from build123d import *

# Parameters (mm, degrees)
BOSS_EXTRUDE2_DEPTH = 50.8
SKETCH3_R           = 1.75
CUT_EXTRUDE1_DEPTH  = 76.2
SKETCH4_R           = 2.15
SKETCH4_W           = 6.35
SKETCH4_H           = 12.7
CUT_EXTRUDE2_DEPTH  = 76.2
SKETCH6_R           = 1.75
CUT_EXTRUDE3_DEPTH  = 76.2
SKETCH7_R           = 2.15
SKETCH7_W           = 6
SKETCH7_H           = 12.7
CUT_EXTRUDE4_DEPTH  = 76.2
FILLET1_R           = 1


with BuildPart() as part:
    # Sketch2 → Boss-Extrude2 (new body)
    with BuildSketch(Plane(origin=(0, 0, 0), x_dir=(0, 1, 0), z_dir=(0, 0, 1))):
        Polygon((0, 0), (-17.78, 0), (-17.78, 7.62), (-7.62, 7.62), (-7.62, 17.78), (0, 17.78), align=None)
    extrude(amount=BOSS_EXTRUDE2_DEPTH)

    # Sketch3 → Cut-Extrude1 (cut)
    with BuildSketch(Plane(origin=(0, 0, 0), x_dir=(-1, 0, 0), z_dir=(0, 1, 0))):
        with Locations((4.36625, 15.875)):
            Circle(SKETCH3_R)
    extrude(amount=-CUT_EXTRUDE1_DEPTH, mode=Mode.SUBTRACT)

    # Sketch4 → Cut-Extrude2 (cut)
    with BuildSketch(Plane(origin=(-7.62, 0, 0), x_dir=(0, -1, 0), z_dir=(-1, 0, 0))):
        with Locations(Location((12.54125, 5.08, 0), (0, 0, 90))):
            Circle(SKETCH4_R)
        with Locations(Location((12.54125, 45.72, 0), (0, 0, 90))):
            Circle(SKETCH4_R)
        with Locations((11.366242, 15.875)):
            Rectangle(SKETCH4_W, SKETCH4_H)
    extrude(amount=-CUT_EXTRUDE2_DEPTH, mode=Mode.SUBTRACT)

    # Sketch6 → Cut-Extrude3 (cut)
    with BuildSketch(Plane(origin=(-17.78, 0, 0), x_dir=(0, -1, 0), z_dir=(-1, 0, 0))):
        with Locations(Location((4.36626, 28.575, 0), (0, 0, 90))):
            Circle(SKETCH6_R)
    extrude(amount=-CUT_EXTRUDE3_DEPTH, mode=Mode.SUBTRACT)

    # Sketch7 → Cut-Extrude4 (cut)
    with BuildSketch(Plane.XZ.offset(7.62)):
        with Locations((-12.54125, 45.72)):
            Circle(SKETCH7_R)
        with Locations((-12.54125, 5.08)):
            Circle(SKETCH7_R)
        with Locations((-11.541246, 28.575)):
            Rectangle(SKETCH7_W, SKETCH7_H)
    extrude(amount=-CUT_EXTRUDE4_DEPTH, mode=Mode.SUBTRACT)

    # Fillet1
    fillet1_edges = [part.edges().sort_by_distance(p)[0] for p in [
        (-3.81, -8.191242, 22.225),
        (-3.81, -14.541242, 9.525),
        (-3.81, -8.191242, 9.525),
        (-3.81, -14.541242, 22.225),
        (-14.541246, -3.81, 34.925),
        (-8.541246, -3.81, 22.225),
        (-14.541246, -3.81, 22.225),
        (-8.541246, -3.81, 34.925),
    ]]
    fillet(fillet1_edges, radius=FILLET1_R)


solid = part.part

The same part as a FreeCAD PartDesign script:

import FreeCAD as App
import Part
import Sketcher

V = App.Vector
Q = App.Units.Quantity


def edges_at(feature, points):
    """Names of the edges that pass closest to the given points."""
    edges = feature.Shape.Edges
    near = lambda p: min(range(len(edges)), key=lambda i: edges[i].distToShape(Part.Vertex(*p))[0])
    return sorted({f"Edge{near(p) + 1}" for p in points})

doc = App.newDocument("Part")
body = doc.addObject("PartDesign::Body", "Body")

# Sketch on XY plane
sketch1 = body.newObject("Sketcher::SketchObject", "Sketch")
sketch1.AttachmentSupport = (doc.getObject("XY_Plane"), [""])
sketch1.MapMode = "FlatFace"
sketch1.addGeometry([
    Part.LineSegment(V(0, -18, 0), V(0, 0, 0)),  # 0
    Part.LineSegment(V(0, 0, 0), V(-18, 0, 0)),  # 1
    Part.LineSegment(V(-18, 0, 0), V(-18, -8, 0)),  # 2
    Part.LineSegment(V(-18, -8, 0), V(-8, -8, 0)),  # 3
    Part.LineSegment(V(-8, -8, 0), V(-8, -18, 0)),  # 4
    Part.LineSegment(V(-8, -18, 0), V(0, -18, 0)),  # 5
], False)
sketch1.addConstraint([
    Sketcher.Constraint("Coincident", 0, 2, 1, 1),
    Sketcher.Constraint("Coincident", 1, 2, 2, 1),
    Sketcher.Constraint("Coincident", 2, 2, 3, 1),
    Sketcher.Constraint("Coincident", 3, 2, 4, 1),
    Sketcher.Constraint("Coincident", 4, 2, 5, 1),
    Sketcher.Constraint("Coincident", 5, 2, 0, 1),
    Sketcher.Constraint("Vertical", 0),
    Sketcher.Constraint("Horizontal", 1),
    Sketcher.Constraint("Vertical", 2),
    Sketcher.Constraint("Horizontal", 3),
    Sketcher.Constraint("Vertical", 4),
    Sketcher.Constraint("Horizontal", 5),
    Sketcher.Constraint("Coincident", 0, 2, -1, 1),
    Sketcher.Constraint("Equal", 1, 0),
    Sketcher.Constraint("Equal", 5, 2),
    Sketcher.Constraint("DistanceX", 1, 2, 1, 1, Q("0.7 in")),
    Sketcher.Constraint("DistanceX", 3, 1, 3, 2, Q("0.4 in")),
])
pad1 = body.newObject("PartDesign::Pad", "Pad")
pad1.Profile = sketch1
pad1.Length = Q("2 in")

# Sketch on XZ plane
sketch2 = body.newObject("Sketcher::SketchObject", "Sketch001")
sketch2.AttachmentSupport = (doc.getObject("XZ_Plane"), [""])
sketch2.MapMode = "FlatFace"
sketch2.addGeometry(Part.Circle(V(-4.4, 15.9, 0), V(0, 0, 1), 1.8), False)
sketch2.addConstraint([
    Sketcher.Constraint("Diameter", 0, 3.5),
    Sketcher.Constraint("DistanceY", -1, 1, 0, 3, Q("0.625 in")),
    Sketcher.Constraint("DistanceX", 0, 3, -1, 1, 4.36625),
])
pocket1 = body.newObject("PartDesign::Pocket", "Pocket")
pocket1.Profile = sketch2
pocket1.Length = Q("3 in")
pocket1.Reversed = True

# Sketch on YZ plane
sketch3 = body.newObject("Sketcher::SketchObject", "Sketch002")
sketch3.AttachmentSupport = (doc.getObject("YZ_Plane"), [""])
sketch3.MapMode = "FlatFace"
sketch3.AttachmentOffset = App.Placement(V(0, 0, -0.3 * 25.4), App.Rotation())
sketch3.addGeometry([
    Part.Circle(V(-12.5, 5.1, 0), V(0, 0, 1), 2.1),  # 0
    Part.Circle(V(-12.5, 45.7, 0), V(0, 0, 1), 2.1),  # 1
    Part.LineSegment(V(-8.2, 22.2, 0), V(-8.2, 9.5, 0)),  # 2
    Part.LineSegment(V(-8.2, 9.5, 0), V(-14.5, 9.5, 0)),  # 3
    Part.LineSegment(V(-14.5, 9.5, 0), V(-14.5, 22.2, 0)),  # 4
    Part.LineSegment(V(-14.5, 22.2, 0), V(-8.2, 22.2, 0)),  # 5
], False)
sketch3.addConstraint([
    Sketcher.Constraint("Coincident", 2, 2, 3, 1),
    Sketcher.Constraint("Coincident", 3, 2, 4, 1),
    Sketcher.Constraint("Coincident", 4, 2, 5, 1),
    Sketcher.Constraint("Coincident", 5, 2, 2, 1),
    Sketcher.Constraint("Vertical", 2),
    Sketcher.Constraint("Horizontal", 3),
    Sketcher.Constraint("Vertical", 4),
    Sketcher.Constraint("Horizontal", 5),
    Sketcher.Constraint("Equal", 0, 1),
    Sketcher.Constraint("Vertical", 0, 3, 1, 3),
    Sketcher.Constraint("DistanceY", 2, 2, 2, 1, Q("0.5 in")),
    Sketcher.Constraint("DistanceX", 3, 2, 3, 1, Q("0.25 in")),
    Sketcher.Constraint("DistanceY", -1, 1, 0, 3, Q("0.2 in")),
    Sketcher.Constraint("DistanceY", -1, 1, 1, 3, Q("1.8 in")),
    Sketcher.Constraint("Diameter", 0, 4.3),
    Sketcher.Constraint("DistanceY", -1, 1, 2, 2, Q("0.375 in")),
    Sketcher.Constraint("DistanceX", 0, 3, -1, 1, 12.54125),
    Sketcher.Constraint("DistanceX", 2, 2, -1, 1, 8.191242),
])
pocket2 = body.newObject("PartDesign::Pocket", "Pocket001")
pocket2.Profile = sketch3
pocket2.Length = Q("3 in")
pocket2.Reversed = True

# Sketch on YZ plane
sketch4 = body.newObject("Sketcher::SketchObject", "Sketch003")
sketch4.AttachmentSupport = (doc.getObject("YZ_Plane"), [""])
sketch4.MapMode = "FlatFace"
sketch4.AttachmentOffset = App.Placement(V(0, 0, -0.7 * 25.4), App.Rotation())
sketch4.addGeometry(Part.Circle(V(-4.4, 28.6, 0), V(0, 0, 1), 1.8), False)
sketch4.addConstraint([
    Sketcher.Constraint("Diameter", 0, 3.5),
    Sketcher.Constraint("DistanceY", -1, 1, 0, 3, Q("1.125 in")),
    Sketcher.Constraint("DistanceX", 0, 3, -1, 1, Q("0.1719 in")),
])
pocket3 = body.newObject("PartDesign::Pocket", "Pocket002")
pocket3.Profile = sketch4
pocket3.Length = Q("3 in")
pocket3.Reversed = True

# Sketch on XZ plane
sketch5 = body.newObject("Sketcher::SketchObject", "Sketch004")
sketch5.AttachmentSupport = (doc.getObject("XZ_Plane"), [""])
sketch5.MapMode = "FlatFace"
sketch5.AttachmentOffset = App.Placement(V(0, 0, 0.3 * 25.4), App.Rotation())
sketch5.addGeometry([
    Part.Circle(V(-12.5, 45.7, 0), V(0, 0, 1), 2.1),  # 0
    Part.Circle(V(-12.5, 5.1, 0), V(0, 0, 1), 2.1),  # 1
    Part.LineSegment(V(-14.5, 34.9, 0), V(-14.5, 22.2, 0)),  # 2
    Part.LineSegment(V(-14.5, 22.2, 0), V(-8.5, 22.2, 0)),  # 3
    Part.LineSegment(V(-8.5, 22.2, 0), V(-8.5, 34.9, 0)),  # 4
    Part.LineSegment(V(-8.5, 34.9, 0), V(-14.5, 34.9, 0)),  # 5
], False)
sketch5.addConstraint([
    Sketcher.Constraint("Coincident", 2, 2, 3, 1),
    Sketcher.Constraint("Coincident", 3, 2, 4, 1),
    Sketcher.Constraint("Coincident", 4, 2, 5, 1),
    Sketcher.Constraint("Coincident", 5, 2, 2, 1),
    Sketcher.Constraint("Vertical", 2),
    Sketcher.Constraint("Horizontal", 3),
    Sketcher.Constraint("Vertical", 4),
    Sketcher.Constraint("Horizontal", 5),
    Sketcher.Constraint("Equal", 0, 1),
    Sketcher.Constraint("Vertical", 0, 3, 1, 3),
    Sketcher.Constraint("DistanceY", 2, 2, 2, 1, Q("0.5 in")),
    Sketcher.Constraint("DistanceY", -1, 1, 0, 3, Q("1.8 in")),
    Sketcher.Constraint("DistanceY", -1, 1, 1, 3, Q("0.2 in")),
    Sketcher.Constraint("Diameter", 0, 4.3),
    Sketcher.Constraint("DistanceY", -1, 1, 2, 2, Q("0.875 in")),
    Sketcher.Constraint("DistanceX", 3, 1, 3, 2, 6.0),
    Sketcher.Constraint("DistanceX", 0, 3, -1, 1, 12.54125),
    Sketcher.Constraint("DistanceX", 2, 2, -1, 1, 14.541246),
])
pocket4 = body.newObject("PartDesign::Pocket", "Pocket003")
pocket4.Profile = sketch5
pocket4.Length = Q("3 in")
doc.recompute()

fillet = body.newObject("PartDesign::Fillet", "Fillet")
fillet.Base = (pocket4, edges_at(pocket4, [
    (-3.81, -8.191, 22.225),
    (-3.81, -14.541, 9.525),
    (-3.81, -8.191, 9.525),
    (-3.81, -14.541, 22.225),
    (-14.541, -3.81, 34.925),
    (-8.541, -3.81, 22.225),
    (-14.541, -3.81, 22.225),
    (-8.541, -3.81, 34.925),
]))
fillet.Radius = 1

doc.recompute()
